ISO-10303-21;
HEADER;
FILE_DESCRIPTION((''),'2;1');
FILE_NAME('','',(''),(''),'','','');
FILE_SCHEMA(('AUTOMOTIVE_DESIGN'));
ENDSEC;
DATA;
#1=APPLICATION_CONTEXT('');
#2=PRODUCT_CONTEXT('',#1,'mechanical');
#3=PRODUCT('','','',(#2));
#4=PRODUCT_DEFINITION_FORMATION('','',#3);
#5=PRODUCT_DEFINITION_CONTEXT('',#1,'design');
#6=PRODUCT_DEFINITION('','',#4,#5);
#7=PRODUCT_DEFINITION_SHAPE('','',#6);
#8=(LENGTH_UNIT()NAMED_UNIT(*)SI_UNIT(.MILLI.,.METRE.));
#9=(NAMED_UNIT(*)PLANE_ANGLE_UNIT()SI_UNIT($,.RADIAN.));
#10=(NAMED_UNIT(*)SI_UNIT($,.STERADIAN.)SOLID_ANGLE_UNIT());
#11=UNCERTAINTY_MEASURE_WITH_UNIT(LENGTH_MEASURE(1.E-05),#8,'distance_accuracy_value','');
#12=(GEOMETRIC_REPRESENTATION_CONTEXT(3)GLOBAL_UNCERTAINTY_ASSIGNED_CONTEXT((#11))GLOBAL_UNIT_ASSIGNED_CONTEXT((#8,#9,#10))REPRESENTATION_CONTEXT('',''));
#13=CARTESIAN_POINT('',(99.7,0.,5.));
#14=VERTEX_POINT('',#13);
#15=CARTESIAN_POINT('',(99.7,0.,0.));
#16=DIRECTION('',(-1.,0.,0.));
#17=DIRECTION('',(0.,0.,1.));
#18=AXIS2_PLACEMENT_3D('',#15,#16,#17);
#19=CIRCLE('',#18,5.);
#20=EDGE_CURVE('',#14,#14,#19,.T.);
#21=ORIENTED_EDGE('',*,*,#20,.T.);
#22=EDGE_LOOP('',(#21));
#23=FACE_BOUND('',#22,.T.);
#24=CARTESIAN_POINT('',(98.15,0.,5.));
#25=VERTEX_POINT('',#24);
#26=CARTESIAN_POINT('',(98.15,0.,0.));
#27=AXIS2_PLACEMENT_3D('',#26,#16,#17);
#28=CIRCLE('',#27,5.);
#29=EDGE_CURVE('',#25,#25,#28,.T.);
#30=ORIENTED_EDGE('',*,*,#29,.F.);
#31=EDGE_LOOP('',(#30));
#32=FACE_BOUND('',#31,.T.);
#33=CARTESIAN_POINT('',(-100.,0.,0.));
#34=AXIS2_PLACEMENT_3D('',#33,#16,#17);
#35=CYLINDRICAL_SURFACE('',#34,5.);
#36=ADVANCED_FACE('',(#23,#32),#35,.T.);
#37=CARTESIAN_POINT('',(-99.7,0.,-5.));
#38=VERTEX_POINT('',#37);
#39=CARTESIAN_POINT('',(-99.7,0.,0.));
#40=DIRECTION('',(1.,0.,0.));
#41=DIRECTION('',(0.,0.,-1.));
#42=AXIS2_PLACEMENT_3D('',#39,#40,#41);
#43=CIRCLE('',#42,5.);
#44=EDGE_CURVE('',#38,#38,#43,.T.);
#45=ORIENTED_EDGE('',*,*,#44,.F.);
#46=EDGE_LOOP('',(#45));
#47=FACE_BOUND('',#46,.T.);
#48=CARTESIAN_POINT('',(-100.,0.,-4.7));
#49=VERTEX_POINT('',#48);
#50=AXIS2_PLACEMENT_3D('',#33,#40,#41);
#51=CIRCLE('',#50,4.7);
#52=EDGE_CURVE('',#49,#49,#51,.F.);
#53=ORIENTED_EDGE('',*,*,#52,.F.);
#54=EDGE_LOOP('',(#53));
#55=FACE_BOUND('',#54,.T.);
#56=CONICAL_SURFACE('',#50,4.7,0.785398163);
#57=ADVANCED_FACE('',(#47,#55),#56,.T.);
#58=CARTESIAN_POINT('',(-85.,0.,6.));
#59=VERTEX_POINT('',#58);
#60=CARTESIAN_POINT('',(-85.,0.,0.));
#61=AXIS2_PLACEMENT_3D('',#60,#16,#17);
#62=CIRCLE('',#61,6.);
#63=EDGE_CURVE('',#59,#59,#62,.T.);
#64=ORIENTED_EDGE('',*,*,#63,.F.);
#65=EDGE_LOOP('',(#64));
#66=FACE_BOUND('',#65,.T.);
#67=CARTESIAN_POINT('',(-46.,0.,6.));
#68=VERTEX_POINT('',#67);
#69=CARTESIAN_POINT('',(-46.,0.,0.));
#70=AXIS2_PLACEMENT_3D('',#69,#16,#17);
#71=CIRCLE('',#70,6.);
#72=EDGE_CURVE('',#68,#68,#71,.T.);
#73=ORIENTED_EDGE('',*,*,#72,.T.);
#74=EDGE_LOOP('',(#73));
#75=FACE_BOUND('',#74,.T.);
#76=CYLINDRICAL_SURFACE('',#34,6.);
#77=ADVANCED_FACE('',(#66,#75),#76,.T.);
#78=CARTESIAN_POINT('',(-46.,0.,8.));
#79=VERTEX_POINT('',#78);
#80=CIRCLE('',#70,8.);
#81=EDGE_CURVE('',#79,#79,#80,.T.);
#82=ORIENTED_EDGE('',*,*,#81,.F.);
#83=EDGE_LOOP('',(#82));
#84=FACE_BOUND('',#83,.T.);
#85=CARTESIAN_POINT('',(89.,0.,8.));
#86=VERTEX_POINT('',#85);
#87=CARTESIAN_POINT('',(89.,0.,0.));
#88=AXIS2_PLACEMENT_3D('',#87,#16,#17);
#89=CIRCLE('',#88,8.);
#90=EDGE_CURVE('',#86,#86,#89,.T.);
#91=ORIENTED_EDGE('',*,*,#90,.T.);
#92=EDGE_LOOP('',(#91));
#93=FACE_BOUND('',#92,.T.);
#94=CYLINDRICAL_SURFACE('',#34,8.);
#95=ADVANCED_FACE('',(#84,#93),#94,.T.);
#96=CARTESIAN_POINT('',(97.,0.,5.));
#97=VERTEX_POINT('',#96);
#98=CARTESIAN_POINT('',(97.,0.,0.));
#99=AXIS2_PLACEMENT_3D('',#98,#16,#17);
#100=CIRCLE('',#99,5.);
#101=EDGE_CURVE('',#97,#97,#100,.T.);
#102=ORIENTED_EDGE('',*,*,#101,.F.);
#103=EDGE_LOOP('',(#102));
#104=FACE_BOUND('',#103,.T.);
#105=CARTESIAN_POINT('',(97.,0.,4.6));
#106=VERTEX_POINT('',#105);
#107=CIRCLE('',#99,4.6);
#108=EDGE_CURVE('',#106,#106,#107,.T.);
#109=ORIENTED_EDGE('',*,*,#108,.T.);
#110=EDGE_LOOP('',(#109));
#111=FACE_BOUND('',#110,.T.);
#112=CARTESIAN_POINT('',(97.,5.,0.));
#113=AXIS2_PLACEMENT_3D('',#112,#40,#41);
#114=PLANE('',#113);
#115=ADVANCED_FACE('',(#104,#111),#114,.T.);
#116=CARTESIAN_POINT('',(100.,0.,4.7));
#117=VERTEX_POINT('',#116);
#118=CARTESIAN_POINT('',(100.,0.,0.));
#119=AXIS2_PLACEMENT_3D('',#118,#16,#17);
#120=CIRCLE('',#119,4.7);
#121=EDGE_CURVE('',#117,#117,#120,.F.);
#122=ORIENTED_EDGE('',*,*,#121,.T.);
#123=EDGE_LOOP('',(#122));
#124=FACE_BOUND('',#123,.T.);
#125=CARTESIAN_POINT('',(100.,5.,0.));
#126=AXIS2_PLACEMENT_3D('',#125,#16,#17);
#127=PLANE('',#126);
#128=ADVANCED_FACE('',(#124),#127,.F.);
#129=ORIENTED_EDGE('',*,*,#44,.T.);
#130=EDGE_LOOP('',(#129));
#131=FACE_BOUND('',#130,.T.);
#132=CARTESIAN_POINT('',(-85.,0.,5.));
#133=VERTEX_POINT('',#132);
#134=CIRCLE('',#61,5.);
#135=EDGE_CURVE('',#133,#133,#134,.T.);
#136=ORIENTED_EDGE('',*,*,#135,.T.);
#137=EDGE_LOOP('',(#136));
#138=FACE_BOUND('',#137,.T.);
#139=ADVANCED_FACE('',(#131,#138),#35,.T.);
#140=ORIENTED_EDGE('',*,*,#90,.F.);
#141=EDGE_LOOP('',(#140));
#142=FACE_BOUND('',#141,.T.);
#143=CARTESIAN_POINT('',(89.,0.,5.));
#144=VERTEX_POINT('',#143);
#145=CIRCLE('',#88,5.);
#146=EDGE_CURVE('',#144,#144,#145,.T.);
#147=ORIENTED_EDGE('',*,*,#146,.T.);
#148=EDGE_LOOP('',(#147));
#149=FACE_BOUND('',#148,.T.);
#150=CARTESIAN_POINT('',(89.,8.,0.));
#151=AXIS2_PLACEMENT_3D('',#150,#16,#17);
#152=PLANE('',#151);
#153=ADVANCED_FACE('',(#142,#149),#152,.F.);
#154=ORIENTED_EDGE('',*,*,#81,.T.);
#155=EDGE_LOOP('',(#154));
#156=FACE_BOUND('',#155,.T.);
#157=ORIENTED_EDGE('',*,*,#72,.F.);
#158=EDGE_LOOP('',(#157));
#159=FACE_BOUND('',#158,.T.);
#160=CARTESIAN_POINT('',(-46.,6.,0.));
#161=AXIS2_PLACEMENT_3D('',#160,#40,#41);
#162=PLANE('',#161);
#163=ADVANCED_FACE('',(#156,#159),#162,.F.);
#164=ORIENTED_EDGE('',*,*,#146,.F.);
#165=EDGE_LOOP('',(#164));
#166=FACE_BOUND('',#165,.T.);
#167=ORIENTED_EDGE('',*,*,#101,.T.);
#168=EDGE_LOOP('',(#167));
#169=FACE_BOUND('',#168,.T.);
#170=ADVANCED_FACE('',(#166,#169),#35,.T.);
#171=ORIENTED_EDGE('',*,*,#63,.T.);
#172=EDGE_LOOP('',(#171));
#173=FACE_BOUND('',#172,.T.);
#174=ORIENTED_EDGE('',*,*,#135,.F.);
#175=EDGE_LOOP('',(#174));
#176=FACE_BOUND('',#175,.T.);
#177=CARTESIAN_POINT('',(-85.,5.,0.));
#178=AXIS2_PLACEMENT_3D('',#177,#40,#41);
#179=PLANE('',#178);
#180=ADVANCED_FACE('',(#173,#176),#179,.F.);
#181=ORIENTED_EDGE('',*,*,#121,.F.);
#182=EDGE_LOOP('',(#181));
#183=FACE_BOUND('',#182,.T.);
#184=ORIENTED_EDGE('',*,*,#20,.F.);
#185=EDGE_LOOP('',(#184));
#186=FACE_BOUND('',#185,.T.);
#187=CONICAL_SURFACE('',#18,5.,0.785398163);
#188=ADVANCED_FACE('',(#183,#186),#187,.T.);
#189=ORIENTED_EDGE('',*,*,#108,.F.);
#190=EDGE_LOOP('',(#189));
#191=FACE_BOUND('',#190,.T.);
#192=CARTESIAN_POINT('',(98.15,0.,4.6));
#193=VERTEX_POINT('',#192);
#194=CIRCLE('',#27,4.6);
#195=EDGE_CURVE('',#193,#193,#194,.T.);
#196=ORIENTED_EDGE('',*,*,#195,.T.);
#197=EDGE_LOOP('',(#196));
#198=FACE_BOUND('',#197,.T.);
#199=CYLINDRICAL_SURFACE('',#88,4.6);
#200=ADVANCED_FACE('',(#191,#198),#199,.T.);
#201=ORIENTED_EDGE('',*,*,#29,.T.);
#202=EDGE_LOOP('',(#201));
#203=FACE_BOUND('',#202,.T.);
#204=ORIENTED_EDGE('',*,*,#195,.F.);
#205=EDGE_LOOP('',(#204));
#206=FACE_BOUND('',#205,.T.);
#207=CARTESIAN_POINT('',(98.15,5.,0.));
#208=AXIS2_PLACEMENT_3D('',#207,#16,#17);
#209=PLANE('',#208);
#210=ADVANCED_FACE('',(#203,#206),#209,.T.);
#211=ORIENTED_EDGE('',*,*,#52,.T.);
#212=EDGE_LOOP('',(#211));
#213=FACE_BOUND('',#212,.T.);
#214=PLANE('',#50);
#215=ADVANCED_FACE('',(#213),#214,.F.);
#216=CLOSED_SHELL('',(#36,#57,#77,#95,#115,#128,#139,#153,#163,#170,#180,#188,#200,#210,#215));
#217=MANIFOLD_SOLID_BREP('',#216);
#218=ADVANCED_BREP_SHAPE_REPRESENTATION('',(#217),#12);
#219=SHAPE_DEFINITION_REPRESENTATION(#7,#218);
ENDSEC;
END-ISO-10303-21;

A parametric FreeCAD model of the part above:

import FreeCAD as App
import Part
import Sketcher
Q = App.Units.Quantity


def edges_at(feature, points):
    """Names of the edges that pass closest to the given points."""
    edges = feature.Shape.Edges
    near = lambda p: min(range(len(edges)), key=lambda i: edges[i].distToShape(Part.Vertex(*p))[0])
    return sorted({f"Edge{near(p) + 1}" for p in points})

doc = App.newDocument("Part")
body = doc.addObject("PartDesign::Body", "Body")

# Sketch on XY plane
sketch1 = body.newObject("Sketcher::SketchObject", "Sketch")
sketch1.AttachmentSupport = (doc.getObject("XY_Plane"), [""])
sketch1.MapMode = "FlatFace"
sketch1.addGeometry(Part.LineSegment(App.Vector(-100, 0, 0), App.Vector(100, 0, 0)), False)
sketch1.addGeometry(Part.LineSegment(App.Vector(100, 0, 0), App.Vector(100, 5, 0)), False)
sketch1.addGeometry(Part.LineSegment(App.Vector(100, 5, 0), App.Vector(89, 5, 0)), False)
sketch1.addGeometry(Part.LineSegment(App.Vector(89, 5, 0), App.Vector(89, 8, 0)), False)
sketch1.addGeometry(Part.LineSegment(App.Vector(89, 8, 0), App.Vector(-46, 8, 0)), False)
sketch1.addGeometry(Part.LineSegment(App.Vector(-46, 8, 0), App.Vector(-46, 6, 0)), False)
sketch1.addGeometry(Part.LineSegment(App.Vector(-46, 6, 0), App.Vector(-85, 6, 0)), False)
sketch1.addGeometry(Part.LineSegment(App.Vector(-85, 6, 0), App.Vector(-85, 5, 0)), False)
sketch1.addGeometry(Part.LineSegment(App.Vector(-85, 5, 0), App.Vector(-100, 5, 0)), False)
sketch1.addGeometry(Part.LineSegment(App.Vector(-100, 5, 0), App.Vector(-100, 0, 0)), False)
sketch1.addConstraint(Sketcher.Constraint("Coincident", 0, 2, 1, 1))
sketch1.addConstraint(Sketcher.Constraint("Coincident", 1, 2, 2, 1))
sketch1.addConstraint(Sketcher.Constraint("Coincident", 2, 2, 3, 1))
sketch1.addConstraint(Sketcher.Constraint("Coincident", 3, 2, 4, 1))
sketch1.addConstraint(Sketcher.Constraint("Coincident", 4, 2, 5, 1))
sketch1.addConstraint(Sketcher.Constraint("Coincident", 5, 2, 6, 1))
sketch1.addConstraint(Sketcher.Constraint("Coincident", 6, 2, 7, 1))
sketch1.addConstraint(Sketcher.Constraint("Coincident", 7, 2, 8, 1))
sketch1.addConstraint(Sketcher.Constraint("Coincident", 8, 2, 9, 1))
sketch1.addConstraint(Sketcher.Constraint("Coincident", 9, 2, 0, 1))
sketch1.addConstraint(Sketcher.Constraint("Horizontal", 0))
sketch1.addConstraint(Sketcher.Constraint("Vertical", 1))
sketch1.addConstraint(Sketcher.Constraint("Horizontal", 2))
sketch1.addConstraint(Sketcher.Constraint("Vertical", 3))
sketch1.addConstraint(Sketcher.Constraint("Horizontal", 4))
sketch1.addConstraint(Sketcher.Constraint("Vertical", 5))
sketch1.addConstraint(Sketcher.Constraint("Horizontal", 6))
sketch1.addConstraint(Sketcher.Constraint("Vertical", 7))
sketch1.addConstraint(Sketcher.Constraint("Horizontal", 8))
sketch1.addConstraint(Sketcher.Constraint("Vertical", 9))
sketch1.addConstraint(Sketcher.Constraint("Symmetric", 0, 2, 9, 2, -1, 1))
sketch1.addConstraint(Sketcher.Constraint("Horizontal", 2, 2, 7, 2))
sketch1.addConstraint(Sketcher.Constraint("DistanceX", 0, 1, 0, 2, Q("200 mm")))
sketch1.addConstraint(Sketcher.Constraint("DistanceX", 2, 2, 2, 1, Q("11 mm")))
sketch1.addConstraint(Sketcher.Constraint("DistanceX", 4, 2, 4, 1, Q("135 mm")))
sketch1.addConstraint(Sketcher.Constraint("DistanceX", 6, 2, 6, 1, Q("39 mm")))
sketch1.addConstraint(Sketcher.Constraint("DistanceY", 1, 1, 1, 2, Q("5 mm")))
sketch1.addConstraint(Sketcher.Constraint("DistanceY", 3, 1, 3, 2, Q("3 mm")))
sketch1.addConstraint(Sketcher.Constraint("DistanceY", 5, 2, 5, 1, Q("2 mm")))
revolution = body.newObject("PartDesign::Revolution", "Revolution")
revolution.Profile = sketch1
revolution.ReferenceAxis = (sketch1, ["H_Axis"])
revolution.Angle = 360

# Sketch on XY plane
sketch2 = body.newObject("Sketcher::SketchObject", "Sketch001")
sketch2.AttachmentSupport = (doc.getObject("XY_Plane"), [""])
sketch2.MapMode = "FlatFace"
sketch2.addGeometry(Part.LineSegment(App.Vector(97, 5, 0), App.Vector(97, 4.6, 0)), False)
sketch2.addGeometry(Part.LineSegment(App.Vector(97, 4.6, 0), App.Vector(98.15, 4.6, 0)), False)
sketch2.addGeometry(Part.LineSegment(App.Vector(98.15, 4.6, 0), App.Vector(98.15, 5, 0)), False)
sketch2.addGeometry(Part.LineSegment(App.Vector(98.15, 5, 0), App.Vector(97, 5, 0)), False)
sketch2.addConstraint(Sketcher.Constraint("Coincident", 0, 2, 1, 1))
sketch2.addConstraint(Sketcher.Constraint("Coincident", 1, 2, 2, 1))
sketch2.addConstraint(Sketcher.Constraint("Coincident", 2, 2, 3, 1))
sketch2.addConstraint(Sketcher.Constraint("Coincident", 3, 2, 0, 1))
sketch2.addConstraint(Sketcher.Constraint("Vertical", 0))
sketch2.addConstraint(Sketcher.Constraint("Horizontal", 1))
sketch2.addConstraint(Sketcher.Constraint("Vertical", 2))
sketch2.addConstraint(Sketcher.Constraint("Horizontal", 3))
sketch2.addConstraint(Sketcher.Constraint("DistanceY", 0, 2, 0, 1, Q("0.4 mm")))
sketch2.addConstraint(Sketcher.Constraint("DistanceX", -1, 1, 0, 2, Q("97 mm")))
sketch2.addConstraint(Sketcher.Constraint("DistanceY", -1, 1, 2, 2, Q("5 mm")))
sketch2.addConstraint(Sketcher.Constraint("DistanceX", 1, 1, 1, 2, Q("1.15 mm")))
groove = body.newObject("PartDesign::Groove", "Groove")
groove.Profile = sketch2
groove.ReferenceAxis = (sketch2, ["H_Axis"])
groove.Angle = 360
doc.recompute()

chamfer = body.newObject("PartDesign::Chamfer", "Chamfer")
chamfer.Base = (groove, edges_at(groove, [(-100, 0, -5), (100, 0, -5)]))
chamfer.Size = 0.3

doc.recompute()
